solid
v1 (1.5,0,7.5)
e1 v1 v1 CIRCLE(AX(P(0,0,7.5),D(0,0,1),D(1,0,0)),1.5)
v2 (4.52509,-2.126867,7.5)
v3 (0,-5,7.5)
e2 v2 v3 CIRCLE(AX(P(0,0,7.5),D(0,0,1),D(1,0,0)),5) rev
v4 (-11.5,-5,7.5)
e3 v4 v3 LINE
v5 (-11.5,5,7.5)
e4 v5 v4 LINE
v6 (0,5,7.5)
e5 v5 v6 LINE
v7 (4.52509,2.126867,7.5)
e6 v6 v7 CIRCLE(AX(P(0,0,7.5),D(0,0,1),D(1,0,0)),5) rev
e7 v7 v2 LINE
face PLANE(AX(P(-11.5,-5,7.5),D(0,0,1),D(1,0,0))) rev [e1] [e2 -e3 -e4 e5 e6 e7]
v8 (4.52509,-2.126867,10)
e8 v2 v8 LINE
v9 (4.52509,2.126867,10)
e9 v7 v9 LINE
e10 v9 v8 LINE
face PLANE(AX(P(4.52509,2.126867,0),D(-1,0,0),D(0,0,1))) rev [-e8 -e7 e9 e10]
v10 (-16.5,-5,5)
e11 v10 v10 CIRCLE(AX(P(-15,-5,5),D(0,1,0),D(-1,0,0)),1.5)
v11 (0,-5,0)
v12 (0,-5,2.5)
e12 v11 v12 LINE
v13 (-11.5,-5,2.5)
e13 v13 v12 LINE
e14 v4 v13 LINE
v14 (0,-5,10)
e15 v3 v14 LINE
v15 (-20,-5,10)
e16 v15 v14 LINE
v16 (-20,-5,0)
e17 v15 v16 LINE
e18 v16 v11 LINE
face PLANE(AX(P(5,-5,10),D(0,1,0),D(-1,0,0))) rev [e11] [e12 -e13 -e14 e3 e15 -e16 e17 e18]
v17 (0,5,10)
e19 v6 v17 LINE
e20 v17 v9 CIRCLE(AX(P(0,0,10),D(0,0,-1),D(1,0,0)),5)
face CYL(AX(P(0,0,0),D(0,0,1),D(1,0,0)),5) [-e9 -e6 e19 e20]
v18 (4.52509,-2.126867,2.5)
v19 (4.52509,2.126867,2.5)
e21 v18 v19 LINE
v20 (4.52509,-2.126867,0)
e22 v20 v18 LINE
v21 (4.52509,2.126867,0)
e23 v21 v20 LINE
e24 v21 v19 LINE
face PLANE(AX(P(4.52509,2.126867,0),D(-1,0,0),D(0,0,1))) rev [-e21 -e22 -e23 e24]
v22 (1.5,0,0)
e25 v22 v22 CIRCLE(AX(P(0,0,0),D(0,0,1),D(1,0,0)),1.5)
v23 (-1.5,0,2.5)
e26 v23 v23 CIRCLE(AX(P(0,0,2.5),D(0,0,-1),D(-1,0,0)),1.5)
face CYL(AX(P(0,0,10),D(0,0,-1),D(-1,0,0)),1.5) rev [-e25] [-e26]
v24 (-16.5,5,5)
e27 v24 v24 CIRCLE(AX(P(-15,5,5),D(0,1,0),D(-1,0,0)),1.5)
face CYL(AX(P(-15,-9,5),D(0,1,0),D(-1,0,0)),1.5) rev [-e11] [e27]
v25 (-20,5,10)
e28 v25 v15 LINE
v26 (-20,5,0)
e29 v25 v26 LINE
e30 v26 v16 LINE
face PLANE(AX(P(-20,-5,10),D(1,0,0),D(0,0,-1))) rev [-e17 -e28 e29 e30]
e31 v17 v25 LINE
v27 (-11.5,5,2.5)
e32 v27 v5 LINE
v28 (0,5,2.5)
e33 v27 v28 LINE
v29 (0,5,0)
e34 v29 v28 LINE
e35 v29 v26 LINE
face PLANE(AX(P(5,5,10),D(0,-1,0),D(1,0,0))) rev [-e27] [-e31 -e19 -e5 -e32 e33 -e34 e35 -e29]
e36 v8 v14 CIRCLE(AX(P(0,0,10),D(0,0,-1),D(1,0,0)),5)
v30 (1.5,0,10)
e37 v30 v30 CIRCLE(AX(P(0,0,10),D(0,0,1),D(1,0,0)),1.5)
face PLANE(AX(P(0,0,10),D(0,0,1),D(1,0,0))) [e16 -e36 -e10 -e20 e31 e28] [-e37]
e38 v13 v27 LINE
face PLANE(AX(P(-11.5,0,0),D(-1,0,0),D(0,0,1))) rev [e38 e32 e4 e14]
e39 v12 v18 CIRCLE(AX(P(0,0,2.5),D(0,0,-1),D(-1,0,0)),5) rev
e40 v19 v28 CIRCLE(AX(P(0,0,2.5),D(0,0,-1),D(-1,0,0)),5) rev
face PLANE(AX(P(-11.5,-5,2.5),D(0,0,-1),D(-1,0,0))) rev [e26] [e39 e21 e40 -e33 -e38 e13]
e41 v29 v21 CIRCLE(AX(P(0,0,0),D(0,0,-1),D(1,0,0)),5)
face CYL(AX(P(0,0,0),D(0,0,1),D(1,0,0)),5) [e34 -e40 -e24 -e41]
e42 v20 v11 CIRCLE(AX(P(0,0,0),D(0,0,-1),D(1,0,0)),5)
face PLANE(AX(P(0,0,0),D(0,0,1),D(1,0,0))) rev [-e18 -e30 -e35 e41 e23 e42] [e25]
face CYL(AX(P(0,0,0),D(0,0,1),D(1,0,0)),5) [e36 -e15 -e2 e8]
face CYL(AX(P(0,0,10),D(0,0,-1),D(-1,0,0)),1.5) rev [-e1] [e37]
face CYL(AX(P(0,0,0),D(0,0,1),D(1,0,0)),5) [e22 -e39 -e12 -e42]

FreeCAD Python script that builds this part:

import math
import FreeCAD as App
import Part
import Sketcher
Q = App.Units.Quantity


def add_polygon(sketch, points):
    """Adds a closed chain of lines whose ends are joined by coincident constraints."""
    first, n = sketch.GeometryCount, len(points)
    for a, b in zip(points, points[1:] + points[:1]):
        sketch.addGeometry(Part.LineSegment(App.Vector(*a, 0), App.Vector(*b, 0)), False)
    for i in range(n):
        sketch.addConstraint(Sketcher.Constraint("Coincident", first + i, 2, first + (i + 1) % n, 1))

doc = App.newDocument("Part")
body = doc.addObject("PartDesign::Body", "Body")

# Sketch on XY plane
sketch1 = body.newObject("Sketcher::SketchObject", "Sketch")
sketch1.AttachmentSupport = (doc.getObject("XY_Plane"), [""])
sketch1.MapMode = "FlatFace"
add_polygon(sketch1, [(-20, 5), (-20, -5), (5, -5), (5, 5)])  # lines 0-3
sketch1.addGeometry(Part.Circle(App.Vector(0, 0, 0), App.Vector(0, 0, 1), 1.5), False)  # 4
sketch1.addConstraint(Sketcher.Constraint("Vertical", 0))
sketch1.addConstraint(Sketcher.Constraint("Horizontal", 1))
sketch1.addConstraint(Sketcher.Constraint("Vertical", 2))
sketch1.addConstraint(Sketcher.Constraint("Horizontal", 3))
sketch1.addConstraint(Sketcher.Constraint("Coincident", 4, 3, -1, 1))
sketch1.addConstraint(Sketcher.Constraint("Diameter", 4, Q("3 mm")))
sketch1.addConstraint(Sketcher.Constraint("DistanceX", 1, 1, 1, 2, Q("25 mm")))
sketch1.addConstraint(Sketcher.Constraint("DistanceY", 0, 2, 0, 1, Q("10 mm")))
sketch1.addConstraint(Sketcher.Constraint("DistanceX", 0, 2, -1, 1, Q("20 mm")))
sketch1.addConstraint(Sketcher.Constraint("DistanceY", 0, 2, -1, 1, Q("5 mm")))
pad1 = body.newObject("PartDesign::Pad", "Pad")
pad1.Profile = sketch1
pad1.Length = 10

# Sketch on XZ plane
sketch2 = body.newObject("Sketcher::SketchObject", "Sketch001")
sketch2.AttachmentSupport = (doc.getObject("XZ_Plane"), [""])
sketch2.MapMode = "FlatFace"
sketch2.AttachmentOffset = App.Placement(App.Vector(0, 0, -5), App.Rotation())
sketch2.addGeometry(Part.Circle(App.Vector(-15, 5, 0), App.Vector(0, 0, 1), 1.5), False)
sketch2.addConstraint(Sketcher.Constraint("Diameter", 0, Q("3 mm")))
sketch2.addConstraint(Sketcher.Constraint("DistanceX", 0, 3, -1, 1, Q("15 mm")))
sketch2.addConstraint(Sketcher.Constraint("DistanceY", -1, 1, 0, 3, Q("5 mm")))
pocket1 = body.newObject("PartDesign::Pocket", "Pocket")
pocket1.Profile = sketch2
pocket1.Length = 14
pocket1.Reversed = True

# Sketch on YZ plane
sketch3 = body.newObject("Sketcher::SketchObject", "Sketch002")
sketch3.AttachmentSupport = (doc.getObject("YZ_Plane"), [""])
sketch3.MapMode = "FlatFace"
sketch3.AttachmentOffset = App.Placement(App.Vector(0, 0, 5), App.Rotation())
add_polygon(sketch3, [(5, 8), (-5, 8), (-5, 2), (5, 2)])  # lines 0-3
sketch3.addConstraint(Sketcher.Constraint("Horizontal", 0))
sketch3.addConstraint(Sketcher.Constraint("Vertical", 1))
sketch3.addConstraint(Sketcher.Constraint("Horizontal", 2))
sketch3.addConstraint(Sketcher.Constraint("Vertical", 3))
sketch3.addConstraint(Sketcher.Constraint("DistanceX", 0, 2, 0, 1, Q("10 mm")))
sketch3.addConstraint(Sketcher.Constraint("DistanceY", 1, 2, 1, 1, Q("5 mm")))
sketch3.addConstraint(Sketcher.Constraint("DistanceX", 0, 2, -1, 1, Q("5 mm")))
sketch3.addConstraint(Sketcher.Constraint("DistanceY", -1, 1, 0, 2, Q("7.5 mm")))
pocket2 = body.newObject("PartDesign::Pocket", "Pocket001")
pocket2.Profile = sketch3
pocket2.Length = 16.5

# Sketch on XY plane
sketch4 = body.newObject("Sketcher::SketchObject", "Sketch003")
sketch4.AttachmentSupport = (doc.getObject("XY_Plane"), [""])
sketch4.MapMode = "FlatFace"
sketch4.AttachmentOffset = App.Placement(App.Vector(0, 0, 10), App.Rotation())
sketch4.addGeometry(Part.LineSegment(App.Vector(6, 5, 0), App.Vector(0, 5, 0)), False)
sketch4.addGeometry(Part.ArcOfCircle(Part.Circle(App.Vector(0, 0, 0), App.Vector(0, 0, 1), 5), math.radians(25), math.radians(90)), False)
sketch4.addGeometry(Part.LineSegment(App.Vector(4.5, 2.1, 0), App.Vector(4.5, -2.1, 0)), False)
sketch4.addGeometry(Part.ArcOfCircle(Part.Circle(App.Vector(0, 0, 0), App.Vector(0, 0, 1), 5), math.radians(-90), math.radians(-25)), False)
sketch4.addGeometry(Part.LineSegment(App.Vector(0, -5, 0), App.Vector(6, -6.7, 0)), False)
sketch4.addGeometry(Part.LineSegment(App.Vector(6, -6.7, 0), App.Vector(6, 5, 0)), False)
sketch4.addConstraint(Sketcher.Constraint("Tangent", 0, 2, 1, 2))
sketch4.addConstraint(Sketcher.Constraint("Coincident", 1, 1, 2, 1))
sketch4.addConstraint(Sketcher.Constraint("Coincident", 2, 2, 3, 2))
sketch4.addConstraint(Sketcher.Constraint("Coincident", 3, 1, 4, 1))
sketch4.addConstraint(Sketcher.Constraint("Coincident", 4, 2, 5, 1))
sketch4.addConstraint(Sketcher.Constraint("Coincident", 5, 2, 0, 1))
sketch4.addConstraint(Sketcher.Constraint("Horizontal", 0))
sketch4.addConstraint(Sketcher.Constraint("Vertical", 2))
sketch4.addConstraint(Sketcher.Constraint("Vertical", 5))
sketch4.addConstraint(Sketcher.Constraint("Coincident", 1, 3, -1, 1))
sketch4.addConstraint(Sketcher.Constraint("Coincident", 3, 3, -1, 1))
sketch4.addConstraint(Sketcher.Constraint("Equal", 1, 3))
sketch4.addConstraint(Sketcher.Constraint("PointOnObject", 3, 1, -2))
sketch4.addConstraint(Sketcher.Constraint("Radius", 1, Q("5 mm")))
sketch4.addConstraint(Sketcher.Constraint("DistanceX", 0, 2, 0, 1, Q("5.992915 mm")))
sketch4.addConstraint(Sketcher.Constraint("DistanceY", 2, 2, 2, 1, Q("4.253734 mm")))
sketch4.addConstraint(Sketcher.Constraint("DistanceY", 5, 1, 5, 2, Q("11.748815 mm")))
pocket3 = body.newObject("PartDesign::Pocket", "Pocket002")
pocket3.Profile = sketch4
pocket3.Length = 10

doc.recompute()
